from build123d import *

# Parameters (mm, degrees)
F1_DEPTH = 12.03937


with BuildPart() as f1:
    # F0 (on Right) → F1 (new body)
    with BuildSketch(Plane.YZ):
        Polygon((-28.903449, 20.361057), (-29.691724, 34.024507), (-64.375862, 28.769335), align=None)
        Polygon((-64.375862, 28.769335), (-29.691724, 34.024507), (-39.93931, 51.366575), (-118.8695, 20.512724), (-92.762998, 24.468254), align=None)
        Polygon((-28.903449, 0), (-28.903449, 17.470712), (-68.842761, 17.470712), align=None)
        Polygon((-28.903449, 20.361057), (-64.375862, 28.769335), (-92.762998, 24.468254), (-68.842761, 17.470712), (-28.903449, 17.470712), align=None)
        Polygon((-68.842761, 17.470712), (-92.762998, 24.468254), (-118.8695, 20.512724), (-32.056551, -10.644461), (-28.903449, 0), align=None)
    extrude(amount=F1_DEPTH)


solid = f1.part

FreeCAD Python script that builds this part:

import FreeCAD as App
import Part
import Sketcher
from FreeCAD import Vector

doc = App.newDocument("Part")
params = doc.addObject("Spreadsheet::Sheet", "Params")
for row, (alias, value) in enumerate([
    ("pad1_length", "12.03937 mm"),
], start=1):
    params.set(f"A{row}", alias)
    params.set(f"B{row}", "=" + value)
    params.setAlias(f"B{row}", alias)

body = doc.addObject("PartDesign::Body", "Body")

sketch1 = doc.addObject("Sketcher::SketchObject", "Sketch")
body.addObject(sketch1)
sketch1.AttachmentSupport = (doc.YZ_Plane, [""])
sketch1.MapMode = "FlatFace"
sketch1.addGeometry([
    Part.LineSegment(Vector(-28.903449, 20.361057, 0), Vector(-29.691724, 34.024507, 0)),
    Part.LineSegment(Vector(-29.691724, 34.024507, 0), Vector(-39.93931, 51.366575, 0)),
    Part.LineSegment(Vector(-39.93931, 51.366575, 0), Vector(-118.8695, 20.512724, 0)),
    Part.LineSegment(Vector(-118.8695, 20.512724, 0), Vector(-32.056551, -10.644461, 0)),
    Part.LineSegment(Vector(-32.056551, -10.644461, 0), Vector(-28.903449, 0, 0)),
    Part.LineSegment(Vector(-28.903449, 0, 0), Vector(-28.903449, 20.361057, 0)),
], False)
sketch1.addConstraint([
    Sketcher.Constraint("Coincident", 0, 2, 1, 1),
    Sketcher.Constraint("Coincident", 1, 2, 2, 1),
    Sketcher.Constraint("Coincident", 2, 2, 3, 1),
    Sketcher.Constraint("Coincident", 3, 2, 4, 1),
    Sketcher.Constraint("Coincident", 4, 2, 5, 1),
    Sketcher.Constraint("Coincident", 5, 2, 0, 1),
    Sketcher.Constraint("Vertical", 5),
    Sketcher.Constraint("PointOnObject", 4, 2, -1),
    Sketcher.Constraint("Distance", 3, 92.2348),
    Sketcher.Constraint("DistanceX", 2, 2, -1, 1, 118.8695),
    Sketcher.Constraint("Distance", 0, 13.68617),
    Sketcher.Constraint("Distance", 4, 11.101649),
    Sketcher.Constraint("DistanceY", 5, 1, 5, 2, 20.361057),
    Sketcher.Constraint("DistanceX", 1, 2, -1, 1, 39.93931),
    Sketcher.Constraint("DistanceX", 3, 2, -1, 1, 32.056551),
    Sketcher.Constraint("DistanceY", 3, 2, -1, 1, 10.644461),
    Sketcher.Constraint("DistanceY", 2, 2, 1, 2, 30.853851),
    Sketcher.Constraint("DistanceY", 5, 2, 0, 2, 13.66345),
])
pad1 = doc.addObject("PartDesign::Pad", "Pad")
body.addObject(pad1)
pad1.Profile = sketch1
pad1.setExpression("Length", "Params.pad1_length")

doc.recompute()
